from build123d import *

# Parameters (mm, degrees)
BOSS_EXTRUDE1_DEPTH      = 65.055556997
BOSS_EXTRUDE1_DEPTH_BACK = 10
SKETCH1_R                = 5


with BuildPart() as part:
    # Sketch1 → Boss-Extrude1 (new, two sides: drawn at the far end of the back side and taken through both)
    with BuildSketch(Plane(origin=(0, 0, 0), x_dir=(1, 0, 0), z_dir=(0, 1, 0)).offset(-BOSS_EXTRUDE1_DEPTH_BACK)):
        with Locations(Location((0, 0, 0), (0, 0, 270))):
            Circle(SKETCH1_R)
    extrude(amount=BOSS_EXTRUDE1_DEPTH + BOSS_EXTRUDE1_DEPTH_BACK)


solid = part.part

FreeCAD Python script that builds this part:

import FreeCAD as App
import Part
import Sketcher
from FreeCAD import Vector
Q = App.Units.Quantity

doc = App.newDocument("Part")
body = doc.addObject("PartDesign::Body", "Body")

sketch1 = body.newObject("Sketcher::SketchObject", "Sketch")
sketch1.AttachmentSupport = (doc.getObject("XZ_Plane"), [""])
sketch1.MapMode = "FlatFace"
sketch1.addGeometry(Part.Circle(Vector(0, 0, 0), Vector(0, 0, 1), 5), False)
sketch1.addConstraint(Sketcher.Constraint("Coincident", 0, 3, -1, 1))
sketch1.addConstraint(Sketcher.Constraint("Diameter", 0, Q("10 mm")))
pad1 = body.newObject("PartDesign::Pad", "Pad")
pad1.Profile = sketch1
pad1.Type = "TwoLengths"
pad1.Length = 65.055557
pad1.Length2 = 10
pad1.Reversed = True

doc.recompute()
